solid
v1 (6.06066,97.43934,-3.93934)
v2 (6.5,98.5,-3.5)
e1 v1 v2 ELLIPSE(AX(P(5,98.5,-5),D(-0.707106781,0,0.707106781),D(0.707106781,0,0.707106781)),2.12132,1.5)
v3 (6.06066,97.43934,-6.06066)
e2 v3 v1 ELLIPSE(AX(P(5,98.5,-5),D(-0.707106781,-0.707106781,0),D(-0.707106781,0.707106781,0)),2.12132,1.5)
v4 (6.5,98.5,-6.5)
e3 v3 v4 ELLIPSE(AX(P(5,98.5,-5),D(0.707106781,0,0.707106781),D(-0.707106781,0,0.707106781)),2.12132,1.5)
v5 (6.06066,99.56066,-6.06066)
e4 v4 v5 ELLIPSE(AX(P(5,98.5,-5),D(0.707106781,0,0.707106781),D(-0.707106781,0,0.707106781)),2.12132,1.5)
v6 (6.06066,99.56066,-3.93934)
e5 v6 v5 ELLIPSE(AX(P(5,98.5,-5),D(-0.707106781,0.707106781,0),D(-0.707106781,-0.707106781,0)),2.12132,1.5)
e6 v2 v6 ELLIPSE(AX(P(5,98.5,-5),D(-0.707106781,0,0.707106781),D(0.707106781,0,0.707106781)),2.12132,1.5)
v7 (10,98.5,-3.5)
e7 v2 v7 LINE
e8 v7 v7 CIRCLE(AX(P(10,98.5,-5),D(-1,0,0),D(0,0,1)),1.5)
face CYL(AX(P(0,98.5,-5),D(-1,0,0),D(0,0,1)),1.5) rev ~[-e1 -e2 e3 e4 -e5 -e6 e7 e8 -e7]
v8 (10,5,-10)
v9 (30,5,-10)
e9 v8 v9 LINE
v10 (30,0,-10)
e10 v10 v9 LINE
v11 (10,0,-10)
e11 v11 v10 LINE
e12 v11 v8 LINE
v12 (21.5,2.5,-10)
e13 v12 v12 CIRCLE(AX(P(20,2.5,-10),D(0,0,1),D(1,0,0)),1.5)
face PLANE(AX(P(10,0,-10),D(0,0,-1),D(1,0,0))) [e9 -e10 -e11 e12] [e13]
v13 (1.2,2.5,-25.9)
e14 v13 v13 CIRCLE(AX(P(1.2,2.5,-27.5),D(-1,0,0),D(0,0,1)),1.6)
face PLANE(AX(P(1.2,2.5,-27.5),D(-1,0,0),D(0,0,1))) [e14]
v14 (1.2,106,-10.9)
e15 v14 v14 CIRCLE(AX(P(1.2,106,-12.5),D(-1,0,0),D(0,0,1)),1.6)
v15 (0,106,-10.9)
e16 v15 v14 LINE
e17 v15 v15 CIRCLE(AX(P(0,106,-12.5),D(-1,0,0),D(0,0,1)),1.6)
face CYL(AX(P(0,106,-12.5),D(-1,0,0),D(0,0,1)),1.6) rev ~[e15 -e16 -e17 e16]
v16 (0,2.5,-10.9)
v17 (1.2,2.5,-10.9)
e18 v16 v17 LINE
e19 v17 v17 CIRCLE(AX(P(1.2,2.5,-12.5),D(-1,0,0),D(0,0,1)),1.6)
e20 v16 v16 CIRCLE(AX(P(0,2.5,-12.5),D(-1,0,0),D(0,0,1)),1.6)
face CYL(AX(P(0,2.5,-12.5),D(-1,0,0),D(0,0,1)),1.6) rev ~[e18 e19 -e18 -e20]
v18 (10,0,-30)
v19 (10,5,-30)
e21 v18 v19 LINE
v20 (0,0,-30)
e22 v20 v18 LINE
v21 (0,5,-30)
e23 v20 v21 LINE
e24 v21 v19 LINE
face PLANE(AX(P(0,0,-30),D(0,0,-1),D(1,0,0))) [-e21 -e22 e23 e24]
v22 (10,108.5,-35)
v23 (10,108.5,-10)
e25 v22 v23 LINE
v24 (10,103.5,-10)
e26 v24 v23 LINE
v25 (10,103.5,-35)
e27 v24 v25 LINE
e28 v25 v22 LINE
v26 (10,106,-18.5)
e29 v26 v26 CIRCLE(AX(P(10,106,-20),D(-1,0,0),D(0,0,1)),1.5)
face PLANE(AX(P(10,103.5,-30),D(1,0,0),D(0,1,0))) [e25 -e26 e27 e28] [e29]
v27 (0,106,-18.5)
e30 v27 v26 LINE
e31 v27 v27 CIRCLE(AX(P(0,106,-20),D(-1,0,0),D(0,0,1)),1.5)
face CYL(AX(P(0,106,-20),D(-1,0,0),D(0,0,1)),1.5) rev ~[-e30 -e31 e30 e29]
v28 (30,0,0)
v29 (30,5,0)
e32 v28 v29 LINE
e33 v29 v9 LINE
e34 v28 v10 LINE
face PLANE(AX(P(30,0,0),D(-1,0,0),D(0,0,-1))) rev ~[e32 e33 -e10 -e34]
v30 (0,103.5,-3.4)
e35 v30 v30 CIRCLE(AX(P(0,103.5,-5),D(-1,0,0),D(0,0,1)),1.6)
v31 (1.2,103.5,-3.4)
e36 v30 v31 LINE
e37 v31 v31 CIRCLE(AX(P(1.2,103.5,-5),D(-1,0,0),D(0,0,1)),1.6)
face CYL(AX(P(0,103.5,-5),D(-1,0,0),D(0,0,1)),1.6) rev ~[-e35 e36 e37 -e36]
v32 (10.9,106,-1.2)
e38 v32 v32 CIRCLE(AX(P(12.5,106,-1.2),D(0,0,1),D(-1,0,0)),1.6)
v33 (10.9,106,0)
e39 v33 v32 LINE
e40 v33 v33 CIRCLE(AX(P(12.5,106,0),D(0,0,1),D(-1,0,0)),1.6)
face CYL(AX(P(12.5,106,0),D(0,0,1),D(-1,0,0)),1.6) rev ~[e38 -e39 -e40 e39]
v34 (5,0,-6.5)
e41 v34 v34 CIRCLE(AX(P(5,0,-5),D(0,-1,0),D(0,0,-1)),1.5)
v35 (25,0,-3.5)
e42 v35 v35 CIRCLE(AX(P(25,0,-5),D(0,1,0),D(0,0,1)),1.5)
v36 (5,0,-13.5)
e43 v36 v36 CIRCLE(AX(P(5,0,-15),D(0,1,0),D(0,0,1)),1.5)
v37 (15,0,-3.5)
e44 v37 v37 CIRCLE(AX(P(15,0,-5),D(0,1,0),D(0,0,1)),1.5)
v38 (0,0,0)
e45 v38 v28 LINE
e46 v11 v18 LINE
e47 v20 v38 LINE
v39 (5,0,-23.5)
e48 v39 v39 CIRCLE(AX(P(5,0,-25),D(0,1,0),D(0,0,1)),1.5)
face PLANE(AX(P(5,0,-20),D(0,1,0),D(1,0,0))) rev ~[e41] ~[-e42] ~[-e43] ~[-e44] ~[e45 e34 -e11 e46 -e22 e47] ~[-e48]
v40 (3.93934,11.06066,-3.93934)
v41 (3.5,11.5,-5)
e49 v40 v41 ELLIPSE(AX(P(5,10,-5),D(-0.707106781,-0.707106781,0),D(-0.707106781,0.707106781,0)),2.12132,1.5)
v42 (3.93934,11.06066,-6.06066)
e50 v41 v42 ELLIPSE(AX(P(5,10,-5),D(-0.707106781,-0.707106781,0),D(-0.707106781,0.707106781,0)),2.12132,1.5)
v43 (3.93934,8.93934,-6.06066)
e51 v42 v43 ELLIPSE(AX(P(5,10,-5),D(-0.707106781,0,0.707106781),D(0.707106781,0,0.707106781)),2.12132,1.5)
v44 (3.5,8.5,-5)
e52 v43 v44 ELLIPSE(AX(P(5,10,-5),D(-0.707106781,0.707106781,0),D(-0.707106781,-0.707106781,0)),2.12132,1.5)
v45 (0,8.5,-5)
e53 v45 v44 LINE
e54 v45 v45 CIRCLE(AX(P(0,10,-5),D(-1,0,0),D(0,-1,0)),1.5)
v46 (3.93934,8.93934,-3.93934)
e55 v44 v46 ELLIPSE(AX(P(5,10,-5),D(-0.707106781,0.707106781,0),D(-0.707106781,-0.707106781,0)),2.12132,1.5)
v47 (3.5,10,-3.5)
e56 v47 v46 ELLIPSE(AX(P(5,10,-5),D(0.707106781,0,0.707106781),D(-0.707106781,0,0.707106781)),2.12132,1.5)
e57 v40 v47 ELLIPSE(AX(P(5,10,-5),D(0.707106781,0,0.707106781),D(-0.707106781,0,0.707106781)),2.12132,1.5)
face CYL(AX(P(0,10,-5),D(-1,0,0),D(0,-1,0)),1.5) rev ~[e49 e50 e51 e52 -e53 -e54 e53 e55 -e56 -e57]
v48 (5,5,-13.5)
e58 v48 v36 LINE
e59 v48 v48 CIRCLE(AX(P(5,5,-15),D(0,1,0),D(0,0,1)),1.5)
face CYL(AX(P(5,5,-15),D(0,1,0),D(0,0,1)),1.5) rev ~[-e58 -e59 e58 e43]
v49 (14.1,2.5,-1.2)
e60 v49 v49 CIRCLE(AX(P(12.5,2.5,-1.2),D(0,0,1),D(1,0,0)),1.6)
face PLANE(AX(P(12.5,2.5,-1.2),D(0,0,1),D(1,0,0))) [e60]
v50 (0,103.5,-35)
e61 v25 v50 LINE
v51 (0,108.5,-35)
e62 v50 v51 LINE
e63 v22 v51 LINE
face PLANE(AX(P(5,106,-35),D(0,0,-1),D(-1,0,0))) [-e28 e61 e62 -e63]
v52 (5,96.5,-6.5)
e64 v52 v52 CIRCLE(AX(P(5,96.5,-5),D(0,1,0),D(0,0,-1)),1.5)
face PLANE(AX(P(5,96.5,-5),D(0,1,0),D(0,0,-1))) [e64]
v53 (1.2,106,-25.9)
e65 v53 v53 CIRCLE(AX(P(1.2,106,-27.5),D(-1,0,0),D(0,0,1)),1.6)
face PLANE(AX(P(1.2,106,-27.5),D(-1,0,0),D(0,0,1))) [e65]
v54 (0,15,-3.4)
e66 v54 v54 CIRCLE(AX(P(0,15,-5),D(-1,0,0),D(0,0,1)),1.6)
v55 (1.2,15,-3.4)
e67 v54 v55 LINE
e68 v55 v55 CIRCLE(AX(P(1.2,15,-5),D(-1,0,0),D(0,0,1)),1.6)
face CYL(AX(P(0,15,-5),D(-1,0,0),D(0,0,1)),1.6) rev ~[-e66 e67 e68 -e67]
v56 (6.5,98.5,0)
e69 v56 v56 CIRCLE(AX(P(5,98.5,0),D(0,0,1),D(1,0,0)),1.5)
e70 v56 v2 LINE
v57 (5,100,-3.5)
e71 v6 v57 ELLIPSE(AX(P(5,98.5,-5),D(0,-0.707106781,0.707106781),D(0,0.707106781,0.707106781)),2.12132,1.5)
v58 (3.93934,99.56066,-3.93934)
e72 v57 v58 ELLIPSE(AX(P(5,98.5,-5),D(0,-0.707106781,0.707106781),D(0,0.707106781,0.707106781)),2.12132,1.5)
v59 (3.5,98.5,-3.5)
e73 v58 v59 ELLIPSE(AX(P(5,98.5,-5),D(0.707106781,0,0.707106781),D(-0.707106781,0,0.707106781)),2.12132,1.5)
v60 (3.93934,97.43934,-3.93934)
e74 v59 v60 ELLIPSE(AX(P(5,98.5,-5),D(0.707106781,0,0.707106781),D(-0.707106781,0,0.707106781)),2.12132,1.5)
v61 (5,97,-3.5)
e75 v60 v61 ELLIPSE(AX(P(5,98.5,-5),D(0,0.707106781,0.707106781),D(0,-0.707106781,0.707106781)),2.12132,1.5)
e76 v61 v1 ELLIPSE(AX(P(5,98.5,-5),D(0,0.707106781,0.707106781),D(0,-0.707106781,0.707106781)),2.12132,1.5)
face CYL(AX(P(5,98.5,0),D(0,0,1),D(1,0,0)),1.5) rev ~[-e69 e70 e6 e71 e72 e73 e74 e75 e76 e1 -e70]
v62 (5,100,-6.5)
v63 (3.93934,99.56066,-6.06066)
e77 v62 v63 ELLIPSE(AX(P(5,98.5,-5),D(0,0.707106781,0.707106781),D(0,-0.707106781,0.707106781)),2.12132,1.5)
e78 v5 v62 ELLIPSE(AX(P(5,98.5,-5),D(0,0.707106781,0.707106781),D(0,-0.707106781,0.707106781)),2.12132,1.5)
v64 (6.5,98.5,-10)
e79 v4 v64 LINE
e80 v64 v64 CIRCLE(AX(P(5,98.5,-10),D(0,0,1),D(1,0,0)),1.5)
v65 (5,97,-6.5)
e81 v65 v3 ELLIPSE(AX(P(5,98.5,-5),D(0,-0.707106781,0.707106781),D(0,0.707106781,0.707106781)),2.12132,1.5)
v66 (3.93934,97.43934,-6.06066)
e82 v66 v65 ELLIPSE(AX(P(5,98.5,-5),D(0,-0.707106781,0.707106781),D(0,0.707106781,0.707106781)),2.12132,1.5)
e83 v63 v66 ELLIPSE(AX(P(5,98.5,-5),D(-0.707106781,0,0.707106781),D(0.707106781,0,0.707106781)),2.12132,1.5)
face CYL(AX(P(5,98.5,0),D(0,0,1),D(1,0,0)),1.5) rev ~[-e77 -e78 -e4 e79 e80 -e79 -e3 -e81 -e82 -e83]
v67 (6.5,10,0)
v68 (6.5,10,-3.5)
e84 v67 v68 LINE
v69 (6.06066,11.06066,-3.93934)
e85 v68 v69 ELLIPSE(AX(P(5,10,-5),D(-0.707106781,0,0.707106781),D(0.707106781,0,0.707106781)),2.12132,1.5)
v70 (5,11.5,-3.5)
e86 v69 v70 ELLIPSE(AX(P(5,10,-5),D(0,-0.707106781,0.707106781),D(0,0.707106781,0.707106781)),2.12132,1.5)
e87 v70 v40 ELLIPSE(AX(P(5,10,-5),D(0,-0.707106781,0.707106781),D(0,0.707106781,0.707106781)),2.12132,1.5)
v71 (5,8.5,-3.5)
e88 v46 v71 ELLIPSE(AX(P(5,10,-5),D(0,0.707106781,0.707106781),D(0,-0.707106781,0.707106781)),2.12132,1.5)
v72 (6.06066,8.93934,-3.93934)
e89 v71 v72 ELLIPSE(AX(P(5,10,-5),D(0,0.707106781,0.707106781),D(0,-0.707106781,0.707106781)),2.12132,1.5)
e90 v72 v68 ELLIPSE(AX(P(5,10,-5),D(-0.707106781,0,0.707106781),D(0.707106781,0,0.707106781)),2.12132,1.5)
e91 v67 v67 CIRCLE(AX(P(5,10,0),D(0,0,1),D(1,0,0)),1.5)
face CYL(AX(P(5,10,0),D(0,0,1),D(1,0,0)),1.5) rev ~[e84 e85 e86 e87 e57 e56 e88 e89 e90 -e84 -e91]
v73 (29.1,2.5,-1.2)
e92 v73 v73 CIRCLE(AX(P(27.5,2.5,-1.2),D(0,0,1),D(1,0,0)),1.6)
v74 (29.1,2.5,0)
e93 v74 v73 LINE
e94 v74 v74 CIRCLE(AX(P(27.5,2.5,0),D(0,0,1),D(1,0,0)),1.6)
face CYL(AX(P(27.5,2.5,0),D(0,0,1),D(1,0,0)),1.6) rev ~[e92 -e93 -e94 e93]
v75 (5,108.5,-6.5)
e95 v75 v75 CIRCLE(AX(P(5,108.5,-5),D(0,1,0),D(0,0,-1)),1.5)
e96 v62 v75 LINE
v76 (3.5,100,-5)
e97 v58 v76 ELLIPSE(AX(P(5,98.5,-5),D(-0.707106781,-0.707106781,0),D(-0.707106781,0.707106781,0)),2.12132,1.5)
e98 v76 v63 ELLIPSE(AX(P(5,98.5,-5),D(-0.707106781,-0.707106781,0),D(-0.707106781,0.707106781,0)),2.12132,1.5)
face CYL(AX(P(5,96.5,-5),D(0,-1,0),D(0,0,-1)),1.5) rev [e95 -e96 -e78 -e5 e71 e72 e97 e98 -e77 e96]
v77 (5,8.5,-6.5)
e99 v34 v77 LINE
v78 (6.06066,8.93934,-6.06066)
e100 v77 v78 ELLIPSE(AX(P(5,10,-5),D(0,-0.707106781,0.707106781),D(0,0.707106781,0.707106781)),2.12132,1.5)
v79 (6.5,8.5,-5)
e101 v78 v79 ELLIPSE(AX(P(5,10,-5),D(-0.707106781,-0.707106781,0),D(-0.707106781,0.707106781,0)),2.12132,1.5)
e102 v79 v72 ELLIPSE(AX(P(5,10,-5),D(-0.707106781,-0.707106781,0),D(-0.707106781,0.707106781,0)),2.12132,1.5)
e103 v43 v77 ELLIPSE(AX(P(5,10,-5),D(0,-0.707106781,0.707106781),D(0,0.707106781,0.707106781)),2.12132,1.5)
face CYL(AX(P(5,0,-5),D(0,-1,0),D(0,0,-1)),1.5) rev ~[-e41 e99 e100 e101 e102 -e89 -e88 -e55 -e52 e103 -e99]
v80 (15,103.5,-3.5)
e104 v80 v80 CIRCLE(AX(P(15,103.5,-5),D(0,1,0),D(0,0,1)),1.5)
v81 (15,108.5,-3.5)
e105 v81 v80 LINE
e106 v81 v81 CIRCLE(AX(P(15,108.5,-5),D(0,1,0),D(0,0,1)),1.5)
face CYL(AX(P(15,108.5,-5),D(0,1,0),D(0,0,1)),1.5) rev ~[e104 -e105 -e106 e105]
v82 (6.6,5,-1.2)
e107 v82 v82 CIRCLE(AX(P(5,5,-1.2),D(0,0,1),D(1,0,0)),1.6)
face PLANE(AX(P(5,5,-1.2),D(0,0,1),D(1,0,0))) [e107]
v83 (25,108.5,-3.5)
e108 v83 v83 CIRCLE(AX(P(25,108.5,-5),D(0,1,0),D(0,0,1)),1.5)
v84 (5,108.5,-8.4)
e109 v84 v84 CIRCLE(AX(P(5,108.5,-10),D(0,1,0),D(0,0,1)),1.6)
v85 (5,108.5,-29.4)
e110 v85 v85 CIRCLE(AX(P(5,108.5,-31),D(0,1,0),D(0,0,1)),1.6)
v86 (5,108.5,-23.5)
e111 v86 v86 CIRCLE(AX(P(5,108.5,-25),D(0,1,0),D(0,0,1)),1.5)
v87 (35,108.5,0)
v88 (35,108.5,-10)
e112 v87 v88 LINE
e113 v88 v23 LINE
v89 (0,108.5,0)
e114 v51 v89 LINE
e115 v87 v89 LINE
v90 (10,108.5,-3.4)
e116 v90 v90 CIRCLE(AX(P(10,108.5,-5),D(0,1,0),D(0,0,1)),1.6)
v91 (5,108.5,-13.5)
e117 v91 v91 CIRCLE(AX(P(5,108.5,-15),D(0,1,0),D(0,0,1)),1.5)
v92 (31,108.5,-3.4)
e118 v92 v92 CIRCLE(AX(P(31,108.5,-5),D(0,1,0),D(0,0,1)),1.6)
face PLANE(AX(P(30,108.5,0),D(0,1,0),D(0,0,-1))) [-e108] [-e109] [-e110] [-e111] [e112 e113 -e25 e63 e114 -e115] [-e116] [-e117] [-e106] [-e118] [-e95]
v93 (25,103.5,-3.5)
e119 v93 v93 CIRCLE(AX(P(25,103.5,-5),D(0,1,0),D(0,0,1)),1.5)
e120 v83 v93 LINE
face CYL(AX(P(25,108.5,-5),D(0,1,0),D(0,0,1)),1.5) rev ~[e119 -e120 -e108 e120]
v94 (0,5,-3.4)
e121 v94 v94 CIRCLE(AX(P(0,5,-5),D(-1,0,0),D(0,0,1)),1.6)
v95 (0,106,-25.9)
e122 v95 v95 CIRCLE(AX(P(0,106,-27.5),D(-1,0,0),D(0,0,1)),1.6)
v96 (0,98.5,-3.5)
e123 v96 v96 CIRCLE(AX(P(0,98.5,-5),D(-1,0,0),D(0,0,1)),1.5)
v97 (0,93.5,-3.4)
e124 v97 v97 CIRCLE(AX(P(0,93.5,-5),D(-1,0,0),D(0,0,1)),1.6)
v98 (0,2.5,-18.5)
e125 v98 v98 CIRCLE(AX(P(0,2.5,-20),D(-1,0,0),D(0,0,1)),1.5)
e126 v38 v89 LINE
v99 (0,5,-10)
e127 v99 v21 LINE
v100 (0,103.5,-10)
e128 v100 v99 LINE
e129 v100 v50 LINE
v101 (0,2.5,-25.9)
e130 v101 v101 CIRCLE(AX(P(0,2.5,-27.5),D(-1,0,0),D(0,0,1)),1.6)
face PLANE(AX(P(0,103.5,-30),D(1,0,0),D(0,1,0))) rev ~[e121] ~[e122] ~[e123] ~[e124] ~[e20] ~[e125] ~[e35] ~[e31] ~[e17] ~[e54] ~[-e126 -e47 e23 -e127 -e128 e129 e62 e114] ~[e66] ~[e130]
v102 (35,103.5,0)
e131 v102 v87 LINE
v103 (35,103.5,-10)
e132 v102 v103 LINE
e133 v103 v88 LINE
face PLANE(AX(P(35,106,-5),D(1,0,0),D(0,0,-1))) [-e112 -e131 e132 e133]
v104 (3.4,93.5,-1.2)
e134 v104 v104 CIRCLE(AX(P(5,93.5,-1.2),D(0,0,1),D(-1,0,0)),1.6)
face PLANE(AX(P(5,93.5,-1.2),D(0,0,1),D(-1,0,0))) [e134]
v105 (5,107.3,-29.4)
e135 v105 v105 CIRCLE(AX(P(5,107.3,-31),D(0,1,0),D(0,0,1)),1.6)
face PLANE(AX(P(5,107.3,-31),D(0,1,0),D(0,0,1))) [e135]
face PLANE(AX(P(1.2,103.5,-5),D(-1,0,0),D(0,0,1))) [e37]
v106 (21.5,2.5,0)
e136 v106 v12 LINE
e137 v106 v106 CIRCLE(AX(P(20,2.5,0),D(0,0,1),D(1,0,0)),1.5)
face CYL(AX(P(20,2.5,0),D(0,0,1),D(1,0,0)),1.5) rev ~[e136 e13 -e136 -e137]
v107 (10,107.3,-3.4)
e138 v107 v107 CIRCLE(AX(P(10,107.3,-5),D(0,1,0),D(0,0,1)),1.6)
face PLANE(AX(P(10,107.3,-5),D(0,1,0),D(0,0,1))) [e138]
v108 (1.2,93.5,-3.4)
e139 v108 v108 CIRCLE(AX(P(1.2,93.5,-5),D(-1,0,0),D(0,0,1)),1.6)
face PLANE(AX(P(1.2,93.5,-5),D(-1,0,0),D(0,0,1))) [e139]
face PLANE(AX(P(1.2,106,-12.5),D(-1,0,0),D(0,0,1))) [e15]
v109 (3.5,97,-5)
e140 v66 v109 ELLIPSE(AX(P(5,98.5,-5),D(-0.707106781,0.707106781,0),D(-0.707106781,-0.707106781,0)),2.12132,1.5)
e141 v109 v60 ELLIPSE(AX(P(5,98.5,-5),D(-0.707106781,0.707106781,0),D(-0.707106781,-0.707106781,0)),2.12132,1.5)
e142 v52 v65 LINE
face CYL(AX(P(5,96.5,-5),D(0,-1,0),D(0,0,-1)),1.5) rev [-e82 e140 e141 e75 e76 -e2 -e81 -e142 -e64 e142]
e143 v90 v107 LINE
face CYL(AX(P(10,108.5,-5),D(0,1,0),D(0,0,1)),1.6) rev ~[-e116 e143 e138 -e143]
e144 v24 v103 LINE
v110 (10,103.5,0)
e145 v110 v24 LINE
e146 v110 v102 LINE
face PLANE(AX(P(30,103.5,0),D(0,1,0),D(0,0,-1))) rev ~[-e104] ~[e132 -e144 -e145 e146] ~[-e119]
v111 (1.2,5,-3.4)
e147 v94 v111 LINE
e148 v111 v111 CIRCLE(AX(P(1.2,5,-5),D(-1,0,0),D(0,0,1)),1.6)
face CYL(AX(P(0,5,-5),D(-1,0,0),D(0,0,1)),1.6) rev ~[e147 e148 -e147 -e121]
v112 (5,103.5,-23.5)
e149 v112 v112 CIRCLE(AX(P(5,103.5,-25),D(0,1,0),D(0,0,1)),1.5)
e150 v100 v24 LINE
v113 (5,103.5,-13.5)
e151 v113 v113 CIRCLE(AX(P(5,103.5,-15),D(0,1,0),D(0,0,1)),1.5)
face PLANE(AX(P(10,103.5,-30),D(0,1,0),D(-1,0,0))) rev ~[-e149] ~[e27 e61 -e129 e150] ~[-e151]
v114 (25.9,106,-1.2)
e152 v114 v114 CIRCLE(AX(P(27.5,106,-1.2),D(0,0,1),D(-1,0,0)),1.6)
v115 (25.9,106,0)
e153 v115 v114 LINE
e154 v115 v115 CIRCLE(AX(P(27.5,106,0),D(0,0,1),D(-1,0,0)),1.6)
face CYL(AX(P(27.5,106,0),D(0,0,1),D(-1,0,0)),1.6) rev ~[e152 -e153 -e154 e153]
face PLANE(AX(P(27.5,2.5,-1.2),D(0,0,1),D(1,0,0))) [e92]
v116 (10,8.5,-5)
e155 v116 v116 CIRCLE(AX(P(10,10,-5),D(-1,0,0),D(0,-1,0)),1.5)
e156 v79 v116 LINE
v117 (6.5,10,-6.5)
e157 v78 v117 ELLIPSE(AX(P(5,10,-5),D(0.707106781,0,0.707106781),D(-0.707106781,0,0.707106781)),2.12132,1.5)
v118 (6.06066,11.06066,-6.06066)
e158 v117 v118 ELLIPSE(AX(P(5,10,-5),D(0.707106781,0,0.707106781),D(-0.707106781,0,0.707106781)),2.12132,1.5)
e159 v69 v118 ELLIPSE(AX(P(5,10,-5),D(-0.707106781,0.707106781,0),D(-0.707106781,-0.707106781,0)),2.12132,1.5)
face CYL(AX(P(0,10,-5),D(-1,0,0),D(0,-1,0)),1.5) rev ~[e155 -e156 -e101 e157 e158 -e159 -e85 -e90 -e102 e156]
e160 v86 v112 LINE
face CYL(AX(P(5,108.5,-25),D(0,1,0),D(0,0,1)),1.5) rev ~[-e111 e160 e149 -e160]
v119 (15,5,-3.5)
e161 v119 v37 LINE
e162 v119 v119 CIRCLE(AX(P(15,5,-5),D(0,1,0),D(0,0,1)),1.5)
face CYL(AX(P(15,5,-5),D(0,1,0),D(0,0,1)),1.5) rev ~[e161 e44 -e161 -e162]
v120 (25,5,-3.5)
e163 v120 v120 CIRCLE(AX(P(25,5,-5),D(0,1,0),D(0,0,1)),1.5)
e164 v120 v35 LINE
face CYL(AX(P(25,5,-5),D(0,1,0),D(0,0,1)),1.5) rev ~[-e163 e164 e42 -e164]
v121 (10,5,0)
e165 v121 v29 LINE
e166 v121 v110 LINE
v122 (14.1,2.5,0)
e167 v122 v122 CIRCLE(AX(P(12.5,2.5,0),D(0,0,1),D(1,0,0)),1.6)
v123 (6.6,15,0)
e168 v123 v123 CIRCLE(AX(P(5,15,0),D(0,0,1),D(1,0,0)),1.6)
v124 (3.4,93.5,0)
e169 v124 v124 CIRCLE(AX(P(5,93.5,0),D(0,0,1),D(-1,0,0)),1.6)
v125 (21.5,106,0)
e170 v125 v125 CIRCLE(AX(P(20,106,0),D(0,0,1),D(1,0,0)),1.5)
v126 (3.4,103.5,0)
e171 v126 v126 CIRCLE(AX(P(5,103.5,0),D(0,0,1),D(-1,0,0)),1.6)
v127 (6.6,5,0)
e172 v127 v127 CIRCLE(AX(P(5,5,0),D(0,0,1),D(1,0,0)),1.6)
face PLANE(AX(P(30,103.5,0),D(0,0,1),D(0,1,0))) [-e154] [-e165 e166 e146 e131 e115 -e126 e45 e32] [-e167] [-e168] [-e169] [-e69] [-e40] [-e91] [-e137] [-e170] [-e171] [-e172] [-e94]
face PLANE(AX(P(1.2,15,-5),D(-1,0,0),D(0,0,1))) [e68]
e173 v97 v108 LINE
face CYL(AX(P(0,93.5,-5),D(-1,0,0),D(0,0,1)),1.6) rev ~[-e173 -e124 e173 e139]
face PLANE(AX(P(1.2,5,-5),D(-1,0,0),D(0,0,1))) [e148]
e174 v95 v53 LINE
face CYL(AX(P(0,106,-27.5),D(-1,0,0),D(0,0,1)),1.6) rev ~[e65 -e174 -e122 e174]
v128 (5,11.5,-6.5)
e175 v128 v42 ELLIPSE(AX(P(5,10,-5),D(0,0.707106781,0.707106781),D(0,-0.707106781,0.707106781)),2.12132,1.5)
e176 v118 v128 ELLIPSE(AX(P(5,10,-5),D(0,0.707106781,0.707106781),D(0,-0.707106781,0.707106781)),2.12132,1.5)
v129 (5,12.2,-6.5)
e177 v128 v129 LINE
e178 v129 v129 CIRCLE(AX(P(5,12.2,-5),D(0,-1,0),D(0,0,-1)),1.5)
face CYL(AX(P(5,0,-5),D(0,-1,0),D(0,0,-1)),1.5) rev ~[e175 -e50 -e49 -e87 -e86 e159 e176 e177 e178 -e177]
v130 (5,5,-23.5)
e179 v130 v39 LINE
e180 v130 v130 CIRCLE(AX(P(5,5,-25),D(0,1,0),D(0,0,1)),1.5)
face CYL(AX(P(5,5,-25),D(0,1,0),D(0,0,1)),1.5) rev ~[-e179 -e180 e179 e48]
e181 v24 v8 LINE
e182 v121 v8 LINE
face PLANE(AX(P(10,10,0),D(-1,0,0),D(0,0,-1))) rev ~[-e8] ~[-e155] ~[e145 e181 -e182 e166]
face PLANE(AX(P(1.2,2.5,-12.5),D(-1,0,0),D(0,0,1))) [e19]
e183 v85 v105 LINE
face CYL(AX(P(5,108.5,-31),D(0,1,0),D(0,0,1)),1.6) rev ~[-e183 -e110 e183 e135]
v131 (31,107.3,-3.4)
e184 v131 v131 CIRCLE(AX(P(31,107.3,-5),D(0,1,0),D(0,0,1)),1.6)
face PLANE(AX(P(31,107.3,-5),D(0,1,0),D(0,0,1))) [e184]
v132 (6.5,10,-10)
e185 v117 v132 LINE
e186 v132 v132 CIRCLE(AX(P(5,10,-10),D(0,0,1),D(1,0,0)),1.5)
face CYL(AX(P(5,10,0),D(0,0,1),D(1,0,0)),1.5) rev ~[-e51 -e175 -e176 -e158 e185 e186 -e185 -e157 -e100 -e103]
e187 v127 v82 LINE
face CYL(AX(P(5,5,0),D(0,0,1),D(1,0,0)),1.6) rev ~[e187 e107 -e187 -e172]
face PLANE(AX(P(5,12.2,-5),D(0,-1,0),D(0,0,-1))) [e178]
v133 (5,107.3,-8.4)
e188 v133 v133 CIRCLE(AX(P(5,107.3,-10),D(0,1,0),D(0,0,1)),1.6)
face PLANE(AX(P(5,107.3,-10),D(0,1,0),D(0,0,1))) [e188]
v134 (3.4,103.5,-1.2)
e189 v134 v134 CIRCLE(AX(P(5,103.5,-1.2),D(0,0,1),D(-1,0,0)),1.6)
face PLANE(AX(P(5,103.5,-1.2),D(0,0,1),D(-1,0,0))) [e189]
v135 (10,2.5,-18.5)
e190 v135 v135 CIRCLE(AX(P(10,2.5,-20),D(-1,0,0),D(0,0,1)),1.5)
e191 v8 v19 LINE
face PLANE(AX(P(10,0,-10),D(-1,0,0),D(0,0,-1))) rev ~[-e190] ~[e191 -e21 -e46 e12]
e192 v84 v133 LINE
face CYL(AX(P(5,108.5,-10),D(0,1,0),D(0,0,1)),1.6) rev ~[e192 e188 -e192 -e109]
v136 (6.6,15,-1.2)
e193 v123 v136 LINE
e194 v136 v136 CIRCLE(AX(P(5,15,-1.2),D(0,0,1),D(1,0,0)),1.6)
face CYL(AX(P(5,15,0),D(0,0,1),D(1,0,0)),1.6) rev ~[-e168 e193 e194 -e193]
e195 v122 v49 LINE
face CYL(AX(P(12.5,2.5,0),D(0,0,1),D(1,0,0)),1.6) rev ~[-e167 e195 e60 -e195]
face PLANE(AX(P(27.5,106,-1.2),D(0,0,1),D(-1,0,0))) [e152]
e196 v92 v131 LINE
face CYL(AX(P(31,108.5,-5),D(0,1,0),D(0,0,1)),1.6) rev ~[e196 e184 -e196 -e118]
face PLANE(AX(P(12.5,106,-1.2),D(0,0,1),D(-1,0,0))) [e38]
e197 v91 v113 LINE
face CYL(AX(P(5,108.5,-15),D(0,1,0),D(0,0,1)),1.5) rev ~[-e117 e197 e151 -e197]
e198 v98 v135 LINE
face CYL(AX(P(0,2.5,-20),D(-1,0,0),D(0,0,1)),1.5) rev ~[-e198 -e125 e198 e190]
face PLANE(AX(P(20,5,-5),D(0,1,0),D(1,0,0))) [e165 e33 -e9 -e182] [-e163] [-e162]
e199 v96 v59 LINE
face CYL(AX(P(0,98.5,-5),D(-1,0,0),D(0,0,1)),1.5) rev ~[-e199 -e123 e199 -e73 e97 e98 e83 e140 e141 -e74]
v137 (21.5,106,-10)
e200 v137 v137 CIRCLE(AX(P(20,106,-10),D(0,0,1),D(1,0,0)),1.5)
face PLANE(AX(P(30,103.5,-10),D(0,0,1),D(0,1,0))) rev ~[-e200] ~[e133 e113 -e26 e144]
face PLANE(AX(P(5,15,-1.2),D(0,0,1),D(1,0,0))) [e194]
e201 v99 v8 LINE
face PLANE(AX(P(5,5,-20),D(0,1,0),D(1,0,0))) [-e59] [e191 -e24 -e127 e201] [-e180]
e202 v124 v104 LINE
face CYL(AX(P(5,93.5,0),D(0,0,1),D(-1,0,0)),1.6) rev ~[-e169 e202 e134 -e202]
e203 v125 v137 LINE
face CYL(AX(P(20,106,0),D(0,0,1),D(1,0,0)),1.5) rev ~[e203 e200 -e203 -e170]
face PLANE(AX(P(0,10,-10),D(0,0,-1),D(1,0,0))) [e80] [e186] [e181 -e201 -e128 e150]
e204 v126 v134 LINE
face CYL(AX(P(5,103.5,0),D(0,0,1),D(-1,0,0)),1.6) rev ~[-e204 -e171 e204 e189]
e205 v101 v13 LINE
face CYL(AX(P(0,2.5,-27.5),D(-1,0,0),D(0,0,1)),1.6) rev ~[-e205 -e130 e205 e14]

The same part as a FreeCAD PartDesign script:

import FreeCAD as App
import Part
import Sketcher


def add_polygon(sketch, points):
    """Adds a closed chain of lines whose ends are joined by coincident constraints."""
    first, n = sketch.GeometryCount, len(points)
    for a, b in zip(points, points[1:] + points[:1]):
        sketch.addGeometry(Part.LineSegment(App.Vector(*a, 0), App.Vector(*b, 0)), False)
    for i in range(n):
        sketch.addConstraint(Sketcher.Constraint("Coincident", first + i, 2, first + (i + 1) % n, 1))

doc = App.newDocument("Part")
body = doc.addObject("PartDesign::Body", "Body")

# Sketch on XZ plane
sketch1 = body.newObject("Sketcher::SketchObject", "Sketch")
sketch1.AttachmentSupport = (doc.getObject("XZ_Plane"), [""])
sketch1.MapMode = "FlatFace"
add_polygon(sketch1, [(0, -30), (0, 0), (30, 0), (30, -10), (10, -10), (10, -30)])  # lines 0-5
sketch1.addConstraint([
    Sketcher.Constraint("Vertical", 0),
    Sketcher.Constraint("Horizontal", 1),
    Sketcher.Constraint("Vertical", 2),
    Sketcher.Constraint("Horizontal", 3),
    Sketcher.Constraint("Vertical", 4),
    Sketcher.Constraint("Horizontal", 5),
    Sketcher.Constraint("Coincident", 0, 2, -1, 1),
    Sketcher.Constraint("Equal", 1, 0),
    Sketcher.Constraint("Equal", 5, 2),
    Sketcher.Constraint("DistanceX", 1, 1, 1, 2, 30.0),
    Sketcher.Constraint("DistanceX", 3, 2, 3, 1, 20.0),
])
pad1 = body.newObject("PartDesign::Pad", "Pad")
pad1.Profile = sketch1
pad1.Length = 10
pad1.Reversed = True

# Sketch on XZ plane
sketch2 = body.newObject("Sketcher::SketchObject", "Sketch001")
sketch2.AttachmentSupport = (doc.getObject("XZ_Plane"), [""])
sketch2.MapMode = "FlatFace"
sketch2.AttachmentOffset = App.Placement(App.Vector(0, 0, -10), App.Rotation())
add_polygon(sketch2, [(0, -10), (0, 0), (10, 0), (10, -10)])  # lines 0-3
sketch2.addConstraint([
    Sketcher.Constraint("Vertical", 0),
    Sketcher.Constraint("Horizontal", 1),
    Sketcher.Constraint("Vertical", 2),
    Sketcher.Constraint("Horizontal", 3),
    Sketcher.Constraint("Coincident", 0, 2, -1, 1),
    Sketcher.Constraint("Equal", 3, 0),
    Sketcher.Constraint("DistanceX", 1, 1, 1, 2, 10.0),
])
pad2 = body.newObject("PartDesign::Pad", "Pad001")
pad2.Profile = sketch2
pad2.Length = 93.5
pad2.Reversed = True

# Sketch on XZ plane
sketch3 = body.newObject("Sketcher::SketchObject", "Sketch002")
sketch3.AttachmentSupport = (doc.getObject("XZ_Plane"), [""])
sketch3.MapMode = "FlatFace"
sketch3.AttachmentOffset = App.Placement(App.Vector(0, 0, -103.5), App.Rotation())
add_polygon(sketch3, [(0, -30), (0, 0), (30, 0), (30, -10), (10, -10), (10, -30)])  # lines 0-5
sketch3.addConstraint([
    Sketcher.Constraint("Vertical", 0),
    Sketcher.Constraint("Horizontal", 1),
    Sketcher.Constraint("Vertical", 2),
    Sketcher.Constraint("Horizontal", 3),
    Sketcher.Constraint("Vertical", 4),
    Sketcher.Constraint("Horizontal", 5),
    Sketcher.Constraint("Coincident", 0, 2, -1, 1),
    Sketcher.Constraint("Equal", 1, 0),
    Sketcher.Constraint("Equal", 5, 2),
    Sketcher.Constraint("DistanceX", 1, 1, 1, 2, 30.0),
    Sketcher.Constraint("DistanceX", 3, 2, 3, 1, 20.0),
])
pad3 = body.newObject("PartDesign::Pad", "Pad002")
pad3.Profile = sketch3
pad3.Length = 5
pad3.Reversed = True

# Sketch on XZ plane
sketch4 = body.newObject("Sketcher::SketchObject", "Sketch003")
sketch4.AttachmentSupport = (doc.getObject("XZ_Plane"), [""])
sketch4.MapMode = "FlatFace"
sketch4.AttachmentOffset = App.Placement(App.Vector(0, 0, -10), App.Rotation())
add_polygon(sketch4, [(10, -10), (10, 0), (30, 0), (30, -10)])  # lines 0-3
add_polygon(sketch4, [(0, -30), (0, -10), (10, -10), (10, -30)])  # lines 4-7
sketch4.addConstraint([
    Sketcher.Constraint("Vertical", 0),
    Sketcher.Constraint("Horizontal", 1),
    Sketcher.Constraint("Vertical", 2),
    Sketcher.Constraint("Horizontal", 3),
    Sketcher.Constraint("Vertical", 4),
    Sketcher.Constraint("Horizontal", 5),
    Sketcher.Constraint("Vertical", 6),
    Sketcher.Constraint("Horizontal", 7),
    Sketcher.Constraint("Coincident", 5, 2, 3, 2),
    Sketcher.Constraint("PointOnObject", 0, 2, -1),
    Sketcher.Constraint("PointOnObject", 4, 2, -2),
    Sketcher.Constraint("Equal", 7, 0),
    Sketcher.Constraint("Equal", 3, 4),
    Sketcher.Constraint("DistanceX", 1, 1, 1, 2, 20.0),
    Sketcher.Constraint("DistanceX", 5, 1, 5, 2, 10.0),
])
pocket1 = body.newObject("PartDesign::Pocket", "Pocket")
pocket1.Profile = sketch4
pocket1.Length = 5
pocket1.Reversed = True

# Sketch on XY plane
sketch5 = body.newObject("Sketcher::SketchObject", "Sketch004")
sketch5.AttachmentSupport = (doc.getObject("XY_Plane"), [""])
sketch5.MapMode = "FlatFace"
sketch5.addGeometry([
    Part.Circle(App.Vector(5, 5, 0), App.Vector(0, 0, 1), 1.6),  # 0
    Part.Circle(App.Vector(27.5, 2.5, 0), App.Vector(0, 0, 1), 1.6),  # 1
    Part.Circle(App.Vector(5, 15, 0), App.Vector(0, 0, 1), 1.6),  # 2
    Part.Circle(App.Vector(12.5, 2.5, 0), App.Vector(0, 0, 1), 1.6),  # 3
    Part.Circle(App.Vector(27.5, 106, 0), App.Vector(0, 0, 1), 1.6),  # 4
    Part.Circle(App.Vector(12.5, 106, 0), App.Vector(0, 0, 1), 1.6),  # 5
    Part.Circle(App.Vector(5, 103.5, 0), App.Vector(0, 0, 1), 1.6),  # 6
    Part.Circle(App.Vector(5, 93.5, 0), App.Vector(0, 0, 1), 1.6),  # 7
], False)
sketch5.addConstraint([
    Sketcher.Constraint("Equal", 0, 1),
    Sketcher.Constraint("Equal", 1, 2),
    Sketcher.Constraint("Equal", 2, 3),
    Sketcher.Constraint("Equal", 3, 4),
    Sketcher.Constraint("Equal", 4, 5),
    Sketcher.Constraint("Equal", 5, 6),
    Sketcher.Constraint("Equal", 6, 7),
    Sketcher.Constraint("Horizontal", 1, 3, 3, 3),
    Sketcher.Constraint("Horizontal", 4, 3, 5, 3),
    Sketcher.Constraint("Vertical", 0, 3, 2, 3),
    Sketcher.Constraint("Vertical", 1, 3, 4, 3),
    Sketcher.Constraint("Vertical", 3, 3, 5, 3),
    Sketcher.Constraint("Vertical", 2, 3, 6, 3),
    Sketcher.Constraint("Vertical", 6, 3, 7, 3),
    Sketcher.Constraint("Diameter", 0, 3.2),
    Sketcher.Constraint("DistanceX", -1, 1, 0, 3, 5.0),
    Sketcher.Constraint("DistanceY", -1, 1, 0, 3, 5.0),
    Sketcher.Constraint("DistanceY", -1, 1, 2, 3, 15.0),
    Sketcher.Constraint("DistanceY", -1, 1, 4, 3, 106.0),
    Sketcher.Constraint("DistanceX", 3, 3, 1, 3, 15.0),
    Sketcher.Constraint("DistanceY", 3, 3, 6, 3, 101.0),
    Sketcher.Constraint("DistanceY", 7, 3, 6, 3, 10.0),
    Sketcher.Constraint("DistanceX", -1, 1, 1, 3, 27.5),
    Sketcher.Constraint("DistanceY", -1, 1, 1, 3, 2.5),
])
pocket2 = body.newObject("PartDesign::Pocket", "Pocket001")
pocket2.Profile = sketch5
pocket2.Length = 1.2

# Sketch on XY plane
sketch6 = body.newObject("Sketcher::SketchObject", "Sketch005")
sketch6.AttachmentSupport = (doc.getObject("XY_Plane"), [""])
sketch6.MapMode = "FlatFace"
sketch6.addGeometry([
    Part.Circle(App.Vector(20, 106, 0), App.Vector(0, 0, 1), 1.5),
    Part.Circle(App.Vector(5, 98.5, 0), App.Vector(0, 0, 1), 1.5),
    Part.Circle(App.Vector(5, 10, 0), App.Vector(0, 0, 1), 1.5),
    Part.Circle(App.Vector(20, 2.5, 0), App.Vector(0, 0, 1), 1.5),
], False)
sketch6.addConstraint([
    Sketcher.Constraint("Equal", 0, 1),
    Sketcher.Constraint("Equal", 1, 2),
    Sketcher.Constraint("Equal", 2, 3),
    Sketcher.Constraint("Vertical", 1, 3, 2, 3),
    Sketcher.Constraint("Vertical", 0, 3, 3, 3),
    Sketcher.Constraint("Diameter", 0, 3.0),
    Sketcher.Constraint("DistanceX", -1, 1, 0, 3, 20.0),
    Sketcher.Constraint("DistanceY", -1, 1, 0, 3, 106.0),
    Sketcher.Constraint("DistanceX", -1, 1, 1, 3, 5.0),
    Sketcher.Constraint("DistanceY", -1, 1, 2, 3, 10.0),
    Sketcher.Constraint("DistanceY", 3, 3, 1, 3, 96.0),
    Sketcher.Constraint("DistanceY", -1, 1, 1, 3, 98.5),
])
pocket3 = body.newObject("PartDesign::Pocket", "Pocket002")
pocket3.Profile = sketch6
pocket3.Length = 10

# Sketch on YZ plane
sketch7 = body.newObject("Sketcher::SketchObject", "Sketch006")
sketch7.AttachmentSupport = (doc.getObject("YZ_Plane"), [""])
sketch7.MapMode = "FlatFace"
sketch7.addGeometry([
    Part.Circle(App.Vector(106, -27.5, 0), App.Vector(0, 0, 1), 1.6),  # 0
    Part.Circle(App.Vector(106, -12.5, 0), App.Vector(0, 0, 1), 1.6),  # 1
    Part.Circle(App.Vector(103.5, -5, 0), App.Vector(0, 0, 1), 1.6),  # 2
    Part.Circle(App.Vector(93.5, -5, 0), App.Vector(0, 0, 1), 1.6),  # 3
    Part.Circle(App.Vector(2.5, -27.5, 0), App.Vector(0, 0, 1), 1.6),  # 4
    Part.Circle(App.Vector(2.5, -12.5, 0), App.Vector(0, 0, 1), 1.6),  # 5
    Part.Circle(App.Vector(5, -5, 0), App.Vector(0, 0, 1), 1.6),  # 6
    Part.Circle(App.Vector(15, -5, 0), App.Vector(0, 0, 1), 1.6),  # 7
], False)
sketch7.addConstraint([
    Sketcher.Constraint("Equal", 0, 1),
    Sketcher.Constraint("Equal", 1, 2),
    Sketcher.Constraint("Equal", 2, 3),
    Sketcher.Constraint("Equal", 3, 4),
    Sketcher.Constraint("Equal", 4, 5),
    Sketcher.Constraint("Equal", 5, 6),
    Sketcher.Constraint("Equal", 6, 7),
    Sketcher.Constraint("Horizontal", 2, 3, 3, 3),
    Sketcher.Constraint("Horizontal", 0, 3, 4, 3),
    Sketcher.Constraint("Horizontal", 1, 3, 5, 3),
    Sketcher.Constraint("Horizontal", 3, 3, 6, 3),
    Sketcher.Constraint("Horizontal", 6, 3, 7, 3),
    Sketcher.Constraint("Vertical", 0, 3, 1, 3),
    Sketcher.Constraint("Vertical", 4, 3, 5, 3),
    Sketcher.Constraint("Diameter", 0, 3.2),
    Sketcher.Constraint("DistanceX", -1, 1, 0, 3, 106.0),
    Sketcher.Constraint("DistanceY", 2, 3, -1, 1, 5.0),
    Sketcher.Constraint("DistanceX", -1, 1, 6, 3, 5.0),
    Sketcher.Constraint("DistanceX", -1, 1, 7, 3, 15.0),
    Sketcher.Constraint("DistanceY", 0, 3, 1, 3, 15.0),
    Sketcher.Constraint("DistanceX", 3, 3, 2, 3, 10.0),
    Sketcher.Constraint("DistanceX", 4, 3, 3, 3, 91.0),
    Sketcher.Constraint("DistanceY", 0, 3, -1, 1, 27.5),
    Sketcher.Constraint("DistanceX", -1, 1, 2, 3, 103.5),
])
pocket4 = body.newObject("PartDesign::Pocket", "Pocket003")
pocket4.Profile = sketch7
pocket4.Length = 1.2
pocket4.Reversed = True

# Sketch on YZ plane
sketch8 = body.newObject("Sketcher::SketchObject", "Sketch007")
sketch8.AttachmentSupport = (doc.getObject("YZ_Plane"), [""])
sketch8.MapMode = "FlatFace"
sketch8.addGeometry([
    Part.Circle(App.Vector(106, -20, 0), App.Vector(0, 0, 1), 1.5),
    Part.Circle(App.Vector(98.5, -5, 0), App.Vector(0, 0, 1), 1.5),
    Part.Circle(App.Vector(10, -5, 0), App.Vector(0, 0, 1), 1.5),
    Part.Circle(App.Vector(2.5, -20, 0), App.Vector(0, 0, 1), 1.5),
], False)
sketch8.addConstraint([
    Sketcher.Constraint("Equal", 0, 1),
    Sketcher.Constraint("Equal", 1, 2),
    Sketcher.Constraint("Equal", 2, 3),
    Sketcher.Constraint("Horizontal", 1, 3, 2, 3),
    Sketcher.Constraint("Horizontal", 0, 3, 3, 3),
    Sketcher.Constraint("Diameter", 0, 3.0),
    Sketcher.Constraint("DistanceX", -1, 1, 0, 3, 106.0),
    Sketcher.Constraint("DistanceY", 0, 3, -1, 1, 20.0),
    Sketcher.Constraint("DistanceY", 1, 3, -1, 1, 5.0),
    Sketcher.Constraint("DistanceX", -1, 1, 2, 3, 10.0),
    Sketcher.Constraint("DistanceX", 3, 3, 1, 3, 96.0),
    Sketcher.Constraint("DistanceX", -1, 1, 1, 3, 98.5),
])
pocket5 = body.newObject("PartDesign::Pocket", "Pocket004")
pocket5.Profile = sketch8
pocket5.Length = 10.2
pocket5.Reversed = True

# Sketch on XZ plane
sketch9 = body.newObject("Sketcher::SketchObject", "Sketch008")
sketch9.AttachmentSupport = (doc.getObject("XZ_Plane"), [""])
sketch9.MapMode = "FlatFace"
sketch9.AttachmentOffset = App.Placement(App.Vector(0, 0, -5), App.Rotation())
sketch9.addGeometry([
    Part.Circle(App.Vector(25, -5, 0), App.Vector(0, 0, 1), 1.5),
    Part.Circle(App.Vector(15, -5, 0), App.Vector(0, 0, 1), 1.5),
    Part.Circle(App.Vector(5, -15, 0), App.Vector(0, 0, 1), 1.5),
    Part.Circle(App.Vector(5, -25, 0), App.Vector(0, 0, 1), 1.5),
], False)
sketch9.addConstraint([
    Sketcher.Constraint("Equal", 0, 1),
    Sketcher.Constraint("Equal", 1, 2),
    Sketcher.Constraint("Equal", 2, 3),
    Sketcher.Constraint("Horizontal", 0, 3, 1, 3),
    Sketcher.Constraint("Vertical", 2, 3, 3, 3),
    Sketcher.Constraint("Diameter", 0, 3.0),
    Sketcher.Constraint("DistanceX", -1, 1, 0, 3, 25.0),
    Sketcher.Constraint("DistanceY", 0, 3, -1, 1, 5.0),
    Sketcher.Constraint("DistanceX", -1, 1, 1, 3, 15.0),
    Sketcher.Constraint("DistanceX", -1, 1, 2, 3, 5.0),
    Sketcher.Constraint("DistanceY", 2, 3, -1, 1, 15.0),
    Sketcher.Constraint("DistanceY", 3, 3, -1, 1, 25.0),
])
pocket6 = body.newObject("PartDesign::Pocket", "Pocket005")
pocket6.Profile = sketch9
pocket6.Length = 10.2
pocket6.Reversed = True

# Sketch on XZ plane
sketch10 = body.newObject("Sketcher::SketchObject", "Sketch009")
sketch10.AttachmentSupport = (doc.getObject("XZ_Plane"), [""])
sketch10.MapMode = "FlatFace"
sketch10.addGeometry(Part.Circle(App.Vector(5, -5, 0), App.Vector(0, 0, 1), 1.5), False)
sketch10.addConstraint([
    Sketcher.Constraint("Diameter", 0, 3.0),
    Sketcher.Constraint("DistanceX", -1, 1, 0, 3, 5.0),
    Sketcher.Constraint("DistanceY", 0, 3, -1, 1, 5.0),
])
pocket7 = body.newObject("PartDesign::Pocket", "Pocket006")
pocket7.Profile = sketch10
pocket7.Length = 12.2

# Sketch on XZ plane
sketch11 = body.newObject("Sketcher::SketchObject", "Sketch010")
sketch11.AttachmentSupport = (doc.getObject("XZ_Plane"), [""])
sketch11.MapMode = "FlatFace"
sketch11.AttachmentOffset = App.Placement(App.Vector(0, 0, -108.5), App.Rotation())
sketch11.addGeometry([
    Part.Circle(App.Vector(5, -15, 0), App.Vector(0, 0, 1), 1.5),
    Part.Circle(App.Vector(5, -25, 0), App.Vector(0, 0, 1), 1.5),
    Part.Circle(App.Vector(15, -5, 0), App.Vector(0, 0, 1), 1.5),
    Part.Circle(App.Vector(25, -5, 0), App.Vector(0, 0, 1), 1.5),
], False)
sketch11.addConstraint([
    Sketcher.Constraint("Equal", 0, 1),
    Sketcher.Constraint("Equal", 1, 2),
    Sketcher.Constraint("Equal", 2, 3),
    Sketcher.Constraint("Horizontal", 2, 3, 3, 3),
    Sketcher.Constraint("Vertical", 0, 3, 1, 3),
    Sketcher.Constraint("Diameter", 0, 3.0),
    Sketcher.Constraint("DistanceX", -1, 1, 0, 3, 5.0),
    Sketcher.Constraint("DistanceY", 0, 3, -1, 1, 15.0),
    Sketcher.Constraint("DistanceY", 1, 3, -1, 1, 25.0),
    Sketcher.Constraint("DistanceX", -1, 1, 2, 3, 15.0),
    Sketcher.Constraint("DistanceY", 2, 3, -1, 1, 5.0),
    Sketcher.Constraint("DistanceX", -1, 1, 3, 3, 25.0),
])
pocket8 = body.newObject("PartDesign::Pocket", "Pocket007")
pocket8.Profile = sketch11
pocket8.Length = 10
pocket8.Reversed = True

# Sketch on XZ plane
sketch12 = body.newObject("Sketcher::SketchObject", "Sketch011")
sketch12.AttachmentSupport = (doc.getObject("XZ_Plane"), [""])
sketch12.MapMode = "FlatFace"
sketch12.AttachmentOffset = App.Placement(App.Vector(0, 0, -96.5), App.Rotation())
sketch12.addGeometry(Part.Circle(App.Vector(5, -5, 0), App.Vector(0, 0, 1), 1.5), False)
sketch12.addConstraint([
    Sketcher.Constraint("Diameter", 0, 3.0),
    Sketcher.Constraint("DistanceX", -1, 1, 0, 3, 5.0),
    Sketcher.Constraint("DistanceY", 0, 3, -1, 1, 5.0),
])
pocket9 = body.newObject("PartDesign::Pocket", "Pocket008")
pocket9.Profile = sketch12
pocket9.Length = 12

# Sketch on XZ plane
sketch13 = body.newObject("Sketcher::SketchObject", "Sketch012")
sketch13.AttachmentSupport = (doc.getObject("XZ_Plane"), [""])
sketch13.MapMode = "FlatFace"
sketch13.AttachmentOffset = App.Placement(App.Vector(0, 0, -108.5), App.Rotation())
sketch13.addGeometry([
    Part.Circle(App.Vector(10, -5, 0), App.Vector(0, 0, 1), 1.6),
    Part.Circle(App.Vector(5, -10, 0), App.Vector(0, 0, 1), 1.6),
], False)
sketch13.addConstraint([
    Sketcher.Constraint("Equal", 0, 1),
    Sketcher.Constraint("Diameter", 0, 3.2),
    Sketcher.Constraint("DistanceX", -1, 1, 0, 3, 10.0),
    Sketcher.Constraint("DistanceY", 0, 3, -1, 1, 5.0),
    Sketcher.Constraint("DistanceX", -1, 1, 1, 3, 5.0),
    Sketcher.Constraint("DistanceY", 1, 3, -1, 1, 10.0),
])
pocket10 = body.newObject("PartDesign::Pocket", "Pocket009")
pocket10.Profile = sketch13
pocket10.Length = 1.2
pocket10.Reversed = True

# Sketch on XY plane
sketch14 = body.newObject("Sketcher::SketchObject", "Sketch013")
sketch14.AttachmentSupport = (doc.getObject("XY_Plane"), [""])
sketch14.MapMode = "FlatFace"
sketch14.AttachmentOffset = App.Placement(App.Vector(0, 0, -30), App.Rotation())
add_polygon(sketch14, [(10, 108.5), (10, 103.5), (0, 103.5), (0, 108.5)])  # lines 0-3
sketch14.addConstraint([
    Sketcher.Constraint("Vertical", 0),
    Sketcher.Constraint("Horizontal", 1),
    Sketcher.Constraint("Vertical", 2),
    Sketcher.Constraint("Horizontal", 3),
    Sketcher.Constraint("PointOnObject", 1, 2, -2),
    Sketcher.Constraint("DistanceX", 1, 2, 1, 1, 10.0),
    Sketcher.Constraint("DistanceY", 0, 2, 0, 1, 5.0),
    Sketcher.Constraint("DistanceY", -1, 1, 0, 2, 103.5),
])
pad4 = body.newObject("PartDesign::Pad", "Pad003")
pad4.Profile = sketch14
pad4.Length = 5
pad4.Reversed = True

# Sketch on YZ plane
sketch15 = body.newObject("Sketcher::SketchObject", "Sketch014")
sketch15.AttachmentSupport = (doc.getObject("YZ_Plane"), [""])
sketch15.MapMode = "FlatFace"
sketch15.AttachmentOffset = App.Placement(App.Vector(0, 0, 30), App.Rotation())
add_polygon(sketch15, [(108.5, 0), (103.5, 0), (103.5, -10), (108.5, -10)])  # lines 0-3
sketch15.addConstraint([
    Sketcher.Constraint("Horizontal", 0),
    Sketcher.Constraint("Vertical", 1),
    Sketcher.Constraint("Horizontal", 2),
    Sketcher.Constraint("Vertical", 3),
    Sketcher.Constraint("PointOnObject", 0, 2, -1),
    Sketcher.Constraint("DistanceX", 0, 2, 0, 1, 5.0),
    Sketcher.Constraint("DistanceY", 1, 2, 1, 1, 10.0),
    Sketcher.Constraint("DistanceX", -1, 1, 0, 2, 103.5),
])
pad5 = body.newObject("PartDesign::Pad", "Pad004")
pad5.Profile = sketch15
pad5.Length = 5

# Sketch on XZ plane
sketch16 = body.newObject("Sketcher::SketchObject", "Sketch015")
sketch16.AttachmentSupport = (doc.getObject("XZ_Plane"), [""])
sketch16.MapMode = "FlatFace"
sketch16.AttachmentOffset = App.Placement(App.Vector(0, 0, -108.5), App.Rotation())
sketch16.addGeometry([
    Part.Circle(App.Vector(31, -5, 0), App.Vector(0, 0, 1), 1.6),
    Part.Circle(App.Vector(5, -31, 0), App.Vector(0, 0, 1), 1.6),
], False)
sketch16.addConstraint([
    Sketcher.Constraint("Equal", 0, 1),
    Sketcher.Constraint("Diameter", 0, 3.2),
    Sketcher.Constraint("DistanceX", -1, 1, 0, 3, 31.0),
    Sketcher.Constraint("DistanceY", 0, 3, -1, 1, 5.0),
    Sketcher.Constraint("DistanceX", -1, 1, 1, 3, 5.0),
    Sketcher.Constraint("DistanceY", 1, 3, -1, 1, 31.0),
])
pocket11 = body.newObject("PartDesign::Pocket", "Pocket010")
pocket11.Profile = sketch16
pocket11.Length = 1.2
pocket11.Reversed = True

doc.recompute()
